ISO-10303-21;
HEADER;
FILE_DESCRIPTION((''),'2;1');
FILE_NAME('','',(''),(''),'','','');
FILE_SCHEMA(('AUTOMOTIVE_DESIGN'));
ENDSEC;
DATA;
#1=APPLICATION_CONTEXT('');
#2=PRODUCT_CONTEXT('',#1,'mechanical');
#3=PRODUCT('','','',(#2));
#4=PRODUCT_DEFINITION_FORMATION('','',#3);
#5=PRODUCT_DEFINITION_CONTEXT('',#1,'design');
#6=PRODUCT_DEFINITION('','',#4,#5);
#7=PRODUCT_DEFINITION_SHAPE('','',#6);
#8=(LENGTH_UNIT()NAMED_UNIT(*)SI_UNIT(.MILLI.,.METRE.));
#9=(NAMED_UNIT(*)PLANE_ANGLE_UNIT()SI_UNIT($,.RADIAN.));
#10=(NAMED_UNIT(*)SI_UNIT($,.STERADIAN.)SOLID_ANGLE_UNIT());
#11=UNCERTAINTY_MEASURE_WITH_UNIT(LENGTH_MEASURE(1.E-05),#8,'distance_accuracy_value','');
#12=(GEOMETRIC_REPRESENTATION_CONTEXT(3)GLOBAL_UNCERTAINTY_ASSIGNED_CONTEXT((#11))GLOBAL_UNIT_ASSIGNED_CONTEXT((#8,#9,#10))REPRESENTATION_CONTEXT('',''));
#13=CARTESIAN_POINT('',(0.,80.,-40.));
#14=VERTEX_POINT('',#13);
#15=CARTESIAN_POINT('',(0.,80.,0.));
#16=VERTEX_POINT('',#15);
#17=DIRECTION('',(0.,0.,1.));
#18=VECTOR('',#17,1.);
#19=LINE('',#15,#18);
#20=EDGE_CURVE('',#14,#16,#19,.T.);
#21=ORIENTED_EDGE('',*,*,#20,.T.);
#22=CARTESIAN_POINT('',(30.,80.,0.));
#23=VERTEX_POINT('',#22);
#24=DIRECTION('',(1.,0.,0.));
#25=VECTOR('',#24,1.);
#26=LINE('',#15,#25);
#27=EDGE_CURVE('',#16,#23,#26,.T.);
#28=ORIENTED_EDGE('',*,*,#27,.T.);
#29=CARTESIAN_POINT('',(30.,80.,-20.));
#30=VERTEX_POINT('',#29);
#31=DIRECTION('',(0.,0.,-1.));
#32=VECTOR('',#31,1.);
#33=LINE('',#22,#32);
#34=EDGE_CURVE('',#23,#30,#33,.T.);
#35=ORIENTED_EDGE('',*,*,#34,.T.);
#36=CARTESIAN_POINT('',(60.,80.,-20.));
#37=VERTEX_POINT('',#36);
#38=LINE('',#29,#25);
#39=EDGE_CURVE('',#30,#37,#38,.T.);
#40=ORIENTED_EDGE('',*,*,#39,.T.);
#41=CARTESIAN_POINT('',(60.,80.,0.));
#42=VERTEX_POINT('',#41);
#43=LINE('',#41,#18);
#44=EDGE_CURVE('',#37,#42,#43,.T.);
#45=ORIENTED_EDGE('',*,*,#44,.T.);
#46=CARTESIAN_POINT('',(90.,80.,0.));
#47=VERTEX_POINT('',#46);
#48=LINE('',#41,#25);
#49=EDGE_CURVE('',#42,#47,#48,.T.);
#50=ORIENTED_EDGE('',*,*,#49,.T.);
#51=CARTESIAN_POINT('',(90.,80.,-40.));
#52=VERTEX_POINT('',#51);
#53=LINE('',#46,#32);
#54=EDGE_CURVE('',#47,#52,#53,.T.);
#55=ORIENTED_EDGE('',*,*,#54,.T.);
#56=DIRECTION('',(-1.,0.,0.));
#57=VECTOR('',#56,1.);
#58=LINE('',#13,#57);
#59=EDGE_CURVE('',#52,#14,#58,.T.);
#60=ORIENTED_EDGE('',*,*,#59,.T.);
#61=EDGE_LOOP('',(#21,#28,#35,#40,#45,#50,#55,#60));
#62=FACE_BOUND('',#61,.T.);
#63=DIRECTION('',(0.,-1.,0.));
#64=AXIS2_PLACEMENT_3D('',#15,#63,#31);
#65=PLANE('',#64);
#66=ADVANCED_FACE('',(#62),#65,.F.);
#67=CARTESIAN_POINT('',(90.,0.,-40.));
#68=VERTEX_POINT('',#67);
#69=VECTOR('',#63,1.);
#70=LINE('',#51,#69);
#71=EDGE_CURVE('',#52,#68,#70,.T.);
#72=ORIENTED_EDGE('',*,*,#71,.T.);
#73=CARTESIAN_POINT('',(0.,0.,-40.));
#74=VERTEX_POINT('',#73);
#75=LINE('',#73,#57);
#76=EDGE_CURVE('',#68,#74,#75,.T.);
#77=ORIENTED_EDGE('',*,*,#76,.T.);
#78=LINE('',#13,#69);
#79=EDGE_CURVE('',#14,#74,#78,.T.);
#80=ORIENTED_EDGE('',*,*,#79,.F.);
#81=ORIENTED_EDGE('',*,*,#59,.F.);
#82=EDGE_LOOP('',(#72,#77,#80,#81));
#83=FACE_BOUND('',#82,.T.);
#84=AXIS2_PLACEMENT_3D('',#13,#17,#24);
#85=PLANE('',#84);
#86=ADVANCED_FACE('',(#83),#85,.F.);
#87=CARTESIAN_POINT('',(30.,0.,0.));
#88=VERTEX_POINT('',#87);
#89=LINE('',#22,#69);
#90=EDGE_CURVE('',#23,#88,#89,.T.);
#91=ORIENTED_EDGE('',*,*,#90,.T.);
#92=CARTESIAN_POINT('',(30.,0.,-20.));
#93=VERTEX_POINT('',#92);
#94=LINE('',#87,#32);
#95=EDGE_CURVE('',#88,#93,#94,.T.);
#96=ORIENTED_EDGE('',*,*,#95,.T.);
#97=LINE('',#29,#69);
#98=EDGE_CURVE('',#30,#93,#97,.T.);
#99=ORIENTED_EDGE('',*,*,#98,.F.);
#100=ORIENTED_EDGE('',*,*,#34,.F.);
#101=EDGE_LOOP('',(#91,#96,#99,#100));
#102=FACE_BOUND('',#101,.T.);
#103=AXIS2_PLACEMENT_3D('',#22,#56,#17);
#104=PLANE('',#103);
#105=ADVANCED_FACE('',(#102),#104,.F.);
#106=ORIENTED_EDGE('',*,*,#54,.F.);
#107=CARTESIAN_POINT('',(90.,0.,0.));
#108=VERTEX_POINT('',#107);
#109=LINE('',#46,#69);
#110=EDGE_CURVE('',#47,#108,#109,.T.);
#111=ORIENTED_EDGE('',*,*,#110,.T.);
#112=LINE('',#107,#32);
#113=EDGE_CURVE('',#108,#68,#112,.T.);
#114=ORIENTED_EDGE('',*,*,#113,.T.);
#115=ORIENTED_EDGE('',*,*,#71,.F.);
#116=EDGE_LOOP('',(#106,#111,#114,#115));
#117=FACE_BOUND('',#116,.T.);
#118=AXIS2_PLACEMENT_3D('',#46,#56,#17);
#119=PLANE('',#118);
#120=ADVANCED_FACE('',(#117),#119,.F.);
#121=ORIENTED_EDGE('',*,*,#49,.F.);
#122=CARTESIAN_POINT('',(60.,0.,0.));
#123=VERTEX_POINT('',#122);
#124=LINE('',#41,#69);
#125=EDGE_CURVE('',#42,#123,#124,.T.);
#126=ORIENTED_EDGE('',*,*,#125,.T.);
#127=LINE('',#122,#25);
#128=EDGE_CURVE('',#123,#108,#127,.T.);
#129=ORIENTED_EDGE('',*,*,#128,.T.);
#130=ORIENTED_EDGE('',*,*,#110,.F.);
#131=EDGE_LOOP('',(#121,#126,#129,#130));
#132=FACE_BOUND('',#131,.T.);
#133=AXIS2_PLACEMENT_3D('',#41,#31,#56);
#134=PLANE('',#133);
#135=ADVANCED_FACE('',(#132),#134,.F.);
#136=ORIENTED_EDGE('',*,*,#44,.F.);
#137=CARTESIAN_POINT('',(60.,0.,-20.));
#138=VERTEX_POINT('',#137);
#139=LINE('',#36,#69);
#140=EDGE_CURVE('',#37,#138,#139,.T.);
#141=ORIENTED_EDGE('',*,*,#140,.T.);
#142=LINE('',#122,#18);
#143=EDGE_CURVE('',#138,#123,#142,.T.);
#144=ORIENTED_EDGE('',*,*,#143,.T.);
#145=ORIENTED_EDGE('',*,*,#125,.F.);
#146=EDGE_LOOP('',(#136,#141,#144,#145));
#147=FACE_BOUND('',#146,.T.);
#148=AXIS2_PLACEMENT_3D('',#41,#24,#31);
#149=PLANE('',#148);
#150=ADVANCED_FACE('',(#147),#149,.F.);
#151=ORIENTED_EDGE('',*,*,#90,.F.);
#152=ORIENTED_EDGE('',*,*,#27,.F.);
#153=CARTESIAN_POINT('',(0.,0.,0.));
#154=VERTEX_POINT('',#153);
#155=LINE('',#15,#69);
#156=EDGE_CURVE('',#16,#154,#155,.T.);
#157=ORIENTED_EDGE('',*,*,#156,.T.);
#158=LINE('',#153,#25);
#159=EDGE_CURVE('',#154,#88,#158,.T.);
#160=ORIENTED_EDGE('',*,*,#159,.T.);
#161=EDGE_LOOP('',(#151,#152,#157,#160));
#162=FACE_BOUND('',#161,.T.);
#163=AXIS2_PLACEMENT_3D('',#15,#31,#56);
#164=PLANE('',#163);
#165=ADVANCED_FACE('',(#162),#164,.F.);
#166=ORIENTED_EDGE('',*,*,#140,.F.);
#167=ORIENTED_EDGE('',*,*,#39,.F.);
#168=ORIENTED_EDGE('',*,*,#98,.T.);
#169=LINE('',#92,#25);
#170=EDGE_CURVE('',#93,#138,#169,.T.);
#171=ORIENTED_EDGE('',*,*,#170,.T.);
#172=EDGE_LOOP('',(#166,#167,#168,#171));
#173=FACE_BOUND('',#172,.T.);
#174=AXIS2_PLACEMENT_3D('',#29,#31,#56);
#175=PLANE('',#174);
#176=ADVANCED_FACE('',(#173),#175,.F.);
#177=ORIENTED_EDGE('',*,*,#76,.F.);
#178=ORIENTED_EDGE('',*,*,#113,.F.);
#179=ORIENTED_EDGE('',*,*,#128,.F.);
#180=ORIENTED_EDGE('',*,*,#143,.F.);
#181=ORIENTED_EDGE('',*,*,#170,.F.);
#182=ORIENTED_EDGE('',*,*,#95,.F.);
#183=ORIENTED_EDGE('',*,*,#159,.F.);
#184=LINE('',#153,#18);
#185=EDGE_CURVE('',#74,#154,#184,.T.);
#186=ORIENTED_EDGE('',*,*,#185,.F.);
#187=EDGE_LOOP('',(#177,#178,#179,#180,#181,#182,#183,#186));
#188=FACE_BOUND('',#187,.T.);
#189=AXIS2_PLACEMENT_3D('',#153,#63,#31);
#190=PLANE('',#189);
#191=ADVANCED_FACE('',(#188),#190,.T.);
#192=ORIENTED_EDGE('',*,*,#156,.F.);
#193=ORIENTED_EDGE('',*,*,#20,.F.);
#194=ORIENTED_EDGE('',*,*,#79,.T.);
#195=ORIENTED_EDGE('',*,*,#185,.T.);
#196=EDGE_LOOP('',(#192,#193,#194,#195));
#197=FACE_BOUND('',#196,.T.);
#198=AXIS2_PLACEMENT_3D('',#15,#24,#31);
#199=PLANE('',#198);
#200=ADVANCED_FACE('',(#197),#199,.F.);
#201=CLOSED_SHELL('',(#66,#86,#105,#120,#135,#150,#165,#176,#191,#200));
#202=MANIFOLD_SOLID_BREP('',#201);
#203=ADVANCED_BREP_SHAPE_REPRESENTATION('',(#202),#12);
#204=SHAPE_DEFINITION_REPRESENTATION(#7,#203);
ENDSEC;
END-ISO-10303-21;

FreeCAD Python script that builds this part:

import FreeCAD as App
import Part
import Sketcher

V = App.Vector


def add_polygon(sketch, points):
    """Adds a closed chain of lines whose ends are joined by coincident constraints."""
    first, n = sketch.GeometryCount, len(points)
    for a, b in zip(points, points[1:] + points[:1]):
        sketch.addGeometry(Part.LineSegment(App.Vector(*a, 0), App.Vector(*b, 0)), False)
    for i in range(n):
        sketch.addConstraint(Sketcher.Constraint("Coincident", first + i, 2, first + (i + 1) % n, 1))

doc = App.newDocument("Part")
body = doc.addObject("PartDesign::Body", "Body")

# Sketch on XZ plane
sketch1 = doc.addObject("Sketcher::SketchObject", "Sketch")
body.addObject(sketch1)
sketch1.AttachmentSupport = (doc.XZ_Plane, [""])
sketch1.MapMode = "FlatFace"
add_polygon(sketch1, [(60, 0), (90, 0), (90, -40), (0, -40), (0, 0), (30, 0), (30, -20), (60, -20)])  # lines 0-7
sketch1.addConstraint(Sketcher.Constraint("Horizontal", 0))
sketch1.addConstraint(Sketcher.Constraint("Vertical", 1))
sketch1.addConstraint(Sketcher.Constraint("Horizontal", 2))
sketch1.addConstraint(Sketcher.Constraint("Vertical", 3))
sketch1.addConstraint(Sketcher.Constraint("Horizontal", 4))
sketch1.addConstraint(Sketcher.Constraint("Vertical", 5))
sketch1.addConstraint(Sketcher.Constraint("Horizontal", 6))
sketch1.addConstraint(Sketcher.Constraint("Vertical", 7))
sketch1.addConstraint(Sketcher.Constraint("Coincident", 3, 2, -1, 1))
sketch1.addConstraint(Sketcher.Constraint("PointOnObject", 0, 2, -1))
sketch1.addConstraint(Sketcher.Constraint("Equal", 0, 4))
sketch1.addConstraint(Sketcher.Constraint("Equal", 4, 6))
sketch1.addConstraint(Sketcher.Constraint("DistanceX", 0, 1, 0, 2, 30.0))
sketch1.addConstraint(Sketcher.Constraint("DistanceY", 1, 2, 1, 1, 40.0))
sketch1.addConstraint(Sketcher.Constraint("DistanceY", 5, 2, 5, 1, 20.0))
pad1 = doc.addObject("PartDesign::Pad", "Pad")
body.addObject(pad1)
pad1.Profile = sketch1
pad1.Length = 80
pad1.Reversed = True

doc.recompute()
